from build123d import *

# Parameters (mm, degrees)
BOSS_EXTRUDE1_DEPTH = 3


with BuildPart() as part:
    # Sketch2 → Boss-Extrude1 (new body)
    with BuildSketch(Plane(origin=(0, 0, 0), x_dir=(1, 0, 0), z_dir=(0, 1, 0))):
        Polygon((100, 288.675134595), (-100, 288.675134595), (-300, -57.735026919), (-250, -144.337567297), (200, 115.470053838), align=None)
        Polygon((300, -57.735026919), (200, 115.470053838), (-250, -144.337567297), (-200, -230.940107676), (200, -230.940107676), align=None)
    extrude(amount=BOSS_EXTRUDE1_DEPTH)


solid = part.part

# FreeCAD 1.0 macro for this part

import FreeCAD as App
import Part
import Sketcher

V = App.Vector
Q = App.Units.Quantity


def add_polygon(sketch, points):
    """Adds a closed chain of lines whose ends are joined by coincident constraints."""
    first, n = sketch.GeometryCount, len(points)
    for a, b in zip(points, points[1:] + points[:1]):
        sketch.addGeometry(Part.LineSegment(App.Vector(*a, 0), App.Vector(*b, 0)), False)
    for i in range(n):
        sketch.addConstraint(Sketcher.Constraint("Coincident", first + i, 2, first + (i + 1) % n, 1))

doc = App.newDocument("Part")
body = doc.addObject("PartDesign::Body", "Body")

# Sketch on XZ plane
sketch1 = body.newObject("Sketcher::SketchObject", "Sketch")
sketch1.AttachmentSupport = (doc.getObject("XZ_Plane"), [""])
sketch1.MapMode = "FlatFace"
add_polygon(sketch1, [(100, -288.675135), (-100, -288.675135), (-300, 57.735027), (-250, 144.337567), (-200, 230.940108), (200, 230.940108), (300, 57.735027)])  # lines 0-6
sketch1.addConstraint(Sketcher.Constraint("Horizontal", 0))
sketch1.addConstraint(Sketcher.Constraint("Horizontal", 4))
sketch1.addConstraint(Sketcher.Constraint("Symmetric", 1, 2, 5, 2, -2))
sketch1.addConstraint(Sketcher.Constraint("Parallel", 2, 3))
sketch1.addConstraint(Sketcher.Constraint("Parallel", 1, 5))
sketch1.addConstraint(Sketcher.Constraint("Parallel", 3, 6))
sketch1.addConstraint(Sketcher.Constraint("Equal", 2, 3))
sketch1.addConstraint(Sketcher.Constraint("Equal", 1, 6))
sketch1.addConstraint(Sketcher.Constraint("DistanceX", 0, 2, 0, 1, 200.0))
sketch1.addConstraint(Sketcher.Constraint("DistanceX", 4, 1, 4, 2, 400.0))
sketch1.addConstraint(Sketcher.Constraint("Angle", 1, Q("120 deg")))
sketch1.addConstraint(Sketcher.Constraint("Distance", 1, 400.0))
sketch1.addConstraint(Sketcher.Constraint("DistanceY", 0, 2, -1, 1, 288.675135))
pad1 = body.newObject("PartDesign::Pad", "Pad")
pad1.Profile = sketch1
pad1.Length = 3
pad1.Reversed = True

doc.recompute()
